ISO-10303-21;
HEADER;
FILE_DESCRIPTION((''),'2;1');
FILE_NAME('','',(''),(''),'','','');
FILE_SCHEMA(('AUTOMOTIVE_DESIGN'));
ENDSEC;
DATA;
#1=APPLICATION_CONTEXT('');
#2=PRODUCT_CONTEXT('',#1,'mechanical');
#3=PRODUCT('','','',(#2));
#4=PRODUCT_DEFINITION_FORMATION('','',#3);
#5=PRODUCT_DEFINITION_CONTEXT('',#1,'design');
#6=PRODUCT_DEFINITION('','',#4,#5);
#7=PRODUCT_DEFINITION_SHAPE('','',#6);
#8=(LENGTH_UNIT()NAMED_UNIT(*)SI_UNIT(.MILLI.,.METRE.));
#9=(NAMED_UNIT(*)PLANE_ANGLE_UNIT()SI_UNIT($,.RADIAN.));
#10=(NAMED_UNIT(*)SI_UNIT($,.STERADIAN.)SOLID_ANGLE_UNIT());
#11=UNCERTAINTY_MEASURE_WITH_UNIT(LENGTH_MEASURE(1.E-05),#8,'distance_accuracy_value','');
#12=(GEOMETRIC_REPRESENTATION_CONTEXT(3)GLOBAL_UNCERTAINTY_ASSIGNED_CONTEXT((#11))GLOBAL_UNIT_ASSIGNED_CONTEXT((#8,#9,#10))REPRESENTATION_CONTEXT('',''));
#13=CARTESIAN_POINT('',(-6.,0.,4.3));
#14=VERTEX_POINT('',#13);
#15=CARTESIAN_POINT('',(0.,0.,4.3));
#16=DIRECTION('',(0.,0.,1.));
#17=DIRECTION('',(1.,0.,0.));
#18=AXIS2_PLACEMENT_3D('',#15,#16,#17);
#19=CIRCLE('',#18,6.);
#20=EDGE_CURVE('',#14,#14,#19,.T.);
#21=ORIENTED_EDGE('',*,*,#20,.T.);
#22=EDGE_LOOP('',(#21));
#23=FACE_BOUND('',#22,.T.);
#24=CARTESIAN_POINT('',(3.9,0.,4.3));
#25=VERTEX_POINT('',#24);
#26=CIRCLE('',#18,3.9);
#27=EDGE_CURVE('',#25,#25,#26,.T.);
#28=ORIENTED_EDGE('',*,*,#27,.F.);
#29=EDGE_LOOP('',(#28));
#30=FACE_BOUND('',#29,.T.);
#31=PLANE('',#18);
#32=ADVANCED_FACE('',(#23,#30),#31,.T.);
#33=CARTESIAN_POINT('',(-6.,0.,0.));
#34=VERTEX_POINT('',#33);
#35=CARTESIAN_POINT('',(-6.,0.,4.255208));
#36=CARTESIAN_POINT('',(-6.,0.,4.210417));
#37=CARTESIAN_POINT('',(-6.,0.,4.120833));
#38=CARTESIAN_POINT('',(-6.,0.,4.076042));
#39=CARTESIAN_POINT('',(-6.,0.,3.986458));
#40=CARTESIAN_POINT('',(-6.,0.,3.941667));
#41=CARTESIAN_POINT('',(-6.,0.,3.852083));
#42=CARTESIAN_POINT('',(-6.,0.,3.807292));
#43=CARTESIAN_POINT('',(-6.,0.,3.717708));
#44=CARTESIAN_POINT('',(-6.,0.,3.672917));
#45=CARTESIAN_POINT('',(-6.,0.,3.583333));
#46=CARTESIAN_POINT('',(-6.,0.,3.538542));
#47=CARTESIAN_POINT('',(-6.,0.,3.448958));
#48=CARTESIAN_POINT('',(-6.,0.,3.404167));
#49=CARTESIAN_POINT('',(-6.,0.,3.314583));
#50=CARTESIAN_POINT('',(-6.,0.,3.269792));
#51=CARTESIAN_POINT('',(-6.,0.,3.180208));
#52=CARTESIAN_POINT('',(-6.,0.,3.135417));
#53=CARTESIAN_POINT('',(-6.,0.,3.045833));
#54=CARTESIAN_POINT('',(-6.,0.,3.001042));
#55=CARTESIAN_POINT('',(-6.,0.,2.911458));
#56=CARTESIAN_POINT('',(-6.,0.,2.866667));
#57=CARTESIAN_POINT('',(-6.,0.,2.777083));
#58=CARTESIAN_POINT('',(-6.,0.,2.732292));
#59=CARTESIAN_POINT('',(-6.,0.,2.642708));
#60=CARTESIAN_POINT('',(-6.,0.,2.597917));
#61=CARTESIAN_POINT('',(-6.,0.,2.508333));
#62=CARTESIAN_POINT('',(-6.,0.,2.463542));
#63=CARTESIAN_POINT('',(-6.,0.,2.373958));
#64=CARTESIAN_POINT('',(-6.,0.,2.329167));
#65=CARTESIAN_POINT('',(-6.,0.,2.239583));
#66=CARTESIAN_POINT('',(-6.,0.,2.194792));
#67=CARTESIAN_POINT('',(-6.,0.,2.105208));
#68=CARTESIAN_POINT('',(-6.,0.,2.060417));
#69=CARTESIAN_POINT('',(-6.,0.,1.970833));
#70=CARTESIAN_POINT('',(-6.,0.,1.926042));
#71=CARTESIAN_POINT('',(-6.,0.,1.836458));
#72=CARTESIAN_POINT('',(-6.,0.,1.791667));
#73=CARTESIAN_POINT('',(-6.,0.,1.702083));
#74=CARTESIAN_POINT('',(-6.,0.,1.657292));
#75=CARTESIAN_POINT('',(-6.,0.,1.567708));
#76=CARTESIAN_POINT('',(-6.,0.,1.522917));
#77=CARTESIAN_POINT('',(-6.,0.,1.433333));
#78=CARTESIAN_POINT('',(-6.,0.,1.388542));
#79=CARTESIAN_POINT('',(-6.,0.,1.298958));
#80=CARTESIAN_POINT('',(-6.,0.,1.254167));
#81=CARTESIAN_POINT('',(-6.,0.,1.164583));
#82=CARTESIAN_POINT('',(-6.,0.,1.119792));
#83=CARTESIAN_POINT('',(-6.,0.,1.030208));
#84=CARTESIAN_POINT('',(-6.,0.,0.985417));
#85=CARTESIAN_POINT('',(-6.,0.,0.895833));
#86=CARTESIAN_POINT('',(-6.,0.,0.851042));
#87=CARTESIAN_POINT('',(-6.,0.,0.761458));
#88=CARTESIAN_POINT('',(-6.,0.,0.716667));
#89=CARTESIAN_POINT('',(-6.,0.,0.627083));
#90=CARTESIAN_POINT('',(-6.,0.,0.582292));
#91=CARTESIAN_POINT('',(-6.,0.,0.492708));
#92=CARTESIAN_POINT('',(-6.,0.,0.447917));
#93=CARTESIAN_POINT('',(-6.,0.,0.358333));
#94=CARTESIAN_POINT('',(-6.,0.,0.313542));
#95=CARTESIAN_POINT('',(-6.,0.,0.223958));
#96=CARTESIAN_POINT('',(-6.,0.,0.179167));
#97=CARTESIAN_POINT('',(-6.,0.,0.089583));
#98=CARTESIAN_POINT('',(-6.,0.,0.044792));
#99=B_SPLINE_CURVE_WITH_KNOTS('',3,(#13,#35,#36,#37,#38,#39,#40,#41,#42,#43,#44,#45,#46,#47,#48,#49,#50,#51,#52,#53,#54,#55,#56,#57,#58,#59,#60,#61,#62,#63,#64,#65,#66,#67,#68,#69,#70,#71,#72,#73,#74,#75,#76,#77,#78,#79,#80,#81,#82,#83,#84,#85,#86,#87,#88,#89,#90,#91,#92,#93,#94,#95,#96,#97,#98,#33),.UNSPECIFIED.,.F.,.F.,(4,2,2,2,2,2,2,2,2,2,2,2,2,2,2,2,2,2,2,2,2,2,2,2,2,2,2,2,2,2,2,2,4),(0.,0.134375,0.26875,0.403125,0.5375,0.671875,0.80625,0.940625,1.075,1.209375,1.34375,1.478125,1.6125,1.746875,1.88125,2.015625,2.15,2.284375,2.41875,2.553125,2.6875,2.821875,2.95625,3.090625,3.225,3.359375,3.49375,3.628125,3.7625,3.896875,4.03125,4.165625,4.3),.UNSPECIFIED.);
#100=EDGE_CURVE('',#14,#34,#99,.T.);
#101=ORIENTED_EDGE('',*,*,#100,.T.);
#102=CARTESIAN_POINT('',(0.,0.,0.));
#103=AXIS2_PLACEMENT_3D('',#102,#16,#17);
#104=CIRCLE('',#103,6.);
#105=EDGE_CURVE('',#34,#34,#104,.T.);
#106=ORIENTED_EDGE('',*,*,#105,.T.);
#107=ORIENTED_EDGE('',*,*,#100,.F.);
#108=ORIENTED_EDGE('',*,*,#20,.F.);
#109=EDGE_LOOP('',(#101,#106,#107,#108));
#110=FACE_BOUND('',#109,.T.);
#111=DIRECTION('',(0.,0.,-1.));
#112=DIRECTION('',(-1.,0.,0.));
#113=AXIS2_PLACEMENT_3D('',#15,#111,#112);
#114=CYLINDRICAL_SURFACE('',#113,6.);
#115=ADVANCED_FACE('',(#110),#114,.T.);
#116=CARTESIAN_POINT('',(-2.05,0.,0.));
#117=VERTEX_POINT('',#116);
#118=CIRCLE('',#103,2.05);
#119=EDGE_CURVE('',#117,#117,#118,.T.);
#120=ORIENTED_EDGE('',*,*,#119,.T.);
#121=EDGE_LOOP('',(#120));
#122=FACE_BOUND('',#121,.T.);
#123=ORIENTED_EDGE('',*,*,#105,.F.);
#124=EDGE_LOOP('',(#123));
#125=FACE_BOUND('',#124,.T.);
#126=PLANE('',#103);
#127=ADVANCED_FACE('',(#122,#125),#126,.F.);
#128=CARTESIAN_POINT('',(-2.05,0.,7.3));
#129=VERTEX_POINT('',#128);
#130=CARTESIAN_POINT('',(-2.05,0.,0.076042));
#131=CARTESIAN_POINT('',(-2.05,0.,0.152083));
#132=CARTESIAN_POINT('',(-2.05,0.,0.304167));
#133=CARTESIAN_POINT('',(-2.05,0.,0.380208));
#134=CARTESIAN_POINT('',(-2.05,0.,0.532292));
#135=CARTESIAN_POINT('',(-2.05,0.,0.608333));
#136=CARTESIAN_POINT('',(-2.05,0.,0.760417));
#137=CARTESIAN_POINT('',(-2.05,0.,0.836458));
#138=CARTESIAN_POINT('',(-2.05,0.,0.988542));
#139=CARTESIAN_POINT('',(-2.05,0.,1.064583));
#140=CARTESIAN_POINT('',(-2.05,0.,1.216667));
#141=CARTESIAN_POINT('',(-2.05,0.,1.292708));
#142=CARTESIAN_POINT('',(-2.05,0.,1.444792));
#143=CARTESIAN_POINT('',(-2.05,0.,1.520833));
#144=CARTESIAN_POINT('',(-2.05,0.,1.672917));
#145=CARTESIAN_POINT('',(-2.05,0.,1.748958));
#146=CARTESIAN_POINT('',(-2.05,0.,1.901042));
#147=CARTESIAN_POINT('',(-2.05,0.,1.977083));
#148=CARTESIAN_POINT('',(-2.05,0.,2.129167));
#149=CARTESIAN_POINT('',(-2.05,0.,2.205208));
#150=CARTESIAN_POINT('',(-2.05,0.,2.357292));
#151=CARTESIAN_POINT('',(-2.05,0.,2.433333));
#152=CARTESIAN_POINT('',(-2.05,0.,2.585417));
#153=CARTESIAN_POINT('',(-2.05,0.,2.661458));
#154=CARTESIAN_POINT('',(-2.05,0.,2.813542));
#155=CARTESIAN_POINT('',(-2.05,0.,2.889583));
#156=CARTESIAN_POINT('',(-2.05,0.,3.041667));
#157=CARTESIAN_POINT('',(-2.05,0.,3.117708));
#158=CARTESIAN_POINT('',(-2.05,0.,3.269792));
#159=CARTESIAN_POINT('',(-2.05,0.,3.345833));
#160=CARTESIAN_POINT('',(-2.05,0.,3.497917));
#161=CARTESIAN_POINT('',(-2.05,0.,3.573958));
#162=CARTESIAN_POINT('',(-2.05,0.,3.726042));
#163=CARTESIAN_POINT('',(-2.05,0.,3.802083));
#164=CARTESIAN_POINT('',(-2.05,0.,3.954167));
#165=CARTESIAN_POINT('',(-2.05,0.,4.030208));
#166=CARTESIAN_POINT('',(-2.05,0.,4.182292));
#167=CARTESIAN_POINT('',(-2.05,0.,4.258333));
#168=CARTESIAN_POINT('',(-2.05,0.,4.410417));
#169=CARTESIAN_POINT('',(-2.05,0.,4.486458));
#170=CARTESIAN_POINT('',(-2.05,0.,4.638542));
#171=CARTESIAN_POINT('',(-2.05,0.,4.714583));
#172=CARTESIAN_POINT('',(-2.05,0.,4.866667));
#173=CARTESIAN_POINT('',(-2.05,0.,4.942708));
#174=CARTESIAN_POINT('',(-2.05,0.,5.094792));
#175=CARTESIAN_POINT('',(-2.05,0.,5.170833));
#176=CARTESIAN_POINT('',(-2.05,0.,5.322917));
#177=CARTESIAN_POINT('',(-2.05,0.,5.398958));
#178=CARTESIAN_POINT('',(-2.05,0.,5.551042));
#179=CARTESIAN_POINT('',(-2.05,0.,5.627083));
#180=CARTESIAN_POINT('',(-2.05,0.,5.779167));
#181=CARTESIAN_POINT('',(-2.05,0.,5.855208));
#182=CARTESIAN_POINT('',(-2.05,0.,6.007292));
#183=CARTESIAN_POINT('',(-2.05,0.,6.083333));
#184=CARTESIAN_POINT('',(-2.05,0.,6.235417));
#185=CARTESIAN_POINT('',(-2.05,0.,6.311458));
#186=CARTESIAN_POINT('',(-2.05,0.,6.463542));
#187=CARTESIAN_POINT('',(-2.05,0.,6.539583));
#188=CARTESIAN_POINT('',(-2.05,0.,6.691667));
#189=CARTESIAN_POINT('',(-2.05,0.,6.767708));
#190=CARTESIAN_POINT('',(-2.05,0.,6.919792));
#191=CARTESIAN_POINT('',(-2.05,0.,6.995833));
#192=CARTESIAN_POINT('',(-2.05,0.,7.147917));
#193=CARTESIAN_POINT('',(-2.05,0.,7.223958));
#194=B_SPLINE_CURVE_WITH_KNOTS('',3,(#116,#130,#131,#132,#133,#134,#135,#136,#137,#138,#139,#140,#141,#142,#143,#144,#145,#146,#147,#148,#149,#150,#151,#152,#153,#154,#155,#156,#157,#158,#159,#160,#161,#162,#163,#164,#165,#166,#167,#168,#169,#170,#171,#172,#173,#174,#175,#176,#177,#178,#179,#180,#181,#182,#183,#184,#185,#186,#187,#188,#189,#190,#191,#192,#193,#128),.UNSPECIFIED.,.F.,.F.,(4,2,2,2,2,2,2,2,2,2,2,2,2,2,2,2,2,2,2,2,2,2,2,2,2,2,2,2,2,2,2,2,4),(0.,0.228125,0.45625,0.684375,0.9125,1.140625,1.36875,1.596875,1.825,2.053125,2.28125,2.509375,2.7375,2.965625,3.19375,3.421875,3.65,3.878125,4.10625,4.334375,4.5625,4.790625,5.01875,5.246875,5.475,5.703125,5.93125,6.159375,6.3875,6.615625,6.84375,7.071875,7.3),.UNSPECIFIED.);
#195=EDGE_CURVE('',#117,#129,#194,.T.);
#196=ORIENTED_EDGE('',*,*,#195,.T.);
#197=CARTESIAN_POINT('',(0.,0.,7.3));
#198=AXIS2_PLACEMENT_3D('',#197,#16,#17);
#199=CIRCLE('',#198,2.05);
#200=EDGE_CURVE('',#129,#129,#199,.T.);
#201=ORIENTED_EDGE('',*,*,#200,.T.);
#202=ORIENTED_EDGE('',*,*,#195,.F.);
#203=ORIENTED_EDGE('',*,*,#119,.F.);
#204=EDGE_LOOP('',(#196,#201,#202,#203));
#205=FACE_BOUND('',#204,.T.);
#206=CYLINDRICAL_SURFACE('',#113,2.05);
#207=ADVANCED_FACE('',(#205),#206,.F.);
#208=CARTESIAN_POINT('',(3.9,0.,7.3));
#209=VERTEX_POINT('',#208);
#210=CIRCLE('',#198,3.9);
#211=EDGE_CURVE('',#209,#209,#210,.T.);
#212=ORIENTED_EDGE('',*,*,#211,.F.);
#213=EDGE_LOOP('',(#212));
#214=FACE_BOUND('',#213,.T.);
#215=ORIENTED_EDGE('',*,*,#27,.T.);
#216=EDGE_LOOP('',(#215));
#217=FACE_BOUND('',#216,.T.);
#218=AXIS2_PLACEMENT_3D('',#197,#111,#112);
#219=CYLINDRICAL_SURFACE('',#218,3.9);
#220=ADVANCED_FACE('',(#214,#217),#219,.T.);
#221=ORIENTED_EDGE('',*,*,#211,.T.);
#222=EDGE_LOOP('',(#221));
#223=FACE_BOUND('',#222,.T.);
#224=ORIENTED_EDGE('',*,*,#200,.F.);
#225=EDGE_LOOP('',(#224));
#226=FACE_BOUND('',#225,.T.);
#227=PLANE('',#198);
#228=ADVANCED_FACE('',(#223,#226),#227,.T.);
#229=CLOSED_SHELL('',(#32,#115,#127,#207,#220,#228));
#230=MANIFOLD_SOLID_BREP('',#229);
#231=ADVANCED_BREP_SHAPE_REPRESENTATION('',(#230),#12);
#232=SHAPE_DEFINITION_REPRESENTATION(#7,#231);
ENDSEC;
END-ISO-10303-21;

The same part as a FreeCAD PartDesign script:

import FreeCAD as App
import Part
import Sketcher

doc = App.newDocument("Part")
body = doc.addObject("PartDesign::Body", "Body")

# Sketch on XY plane
sketch1 = body.newObject("Sketcher::SketchObject", "Sketch")
sketch1.AttachmentSupport = (doc.getObject("XY_Plane"), [""])
sketch1.MapMode = "FlatFace"
sketch1.addGeometry([
    Part.Circle(App.Vector(0, 0, 0), App.Vector(0, 0, 1), 6),
    Part.Circle(App.Vector(0, 0, 0), App.Vector(0, 0, 1), 2),
], False)
sketch1.addConstraint([
    Sketcher.Constraint("Coincident", 0, 3, -1, 1),
    Sketcher.Constraint("Coincident", 1, 3, -1, 1),
    Sketcher.Constraint("Diameter", 0, 12.0),
    Sketcher.Constraint("Diameter", 1, 4.1),
])
pad1 = body.newObject("PartDesign::Pad", "Pad")
pad1.Profile = sketch1
pad1.Length = 4.3

# Sketch on XY plane
sketch2 = body.newObject("Sketcher::SketchObject", "Sketch001")
sketch2.AttachmentSupport = (doc.getObject("XY_Plane"), [""])
sketch2.MapMode = "FlatFace"
sketch2.AttachmentOffset = App.Placement(App.Vector(0, 0, 4.3), App.Rotation())
sketch2.addGeometry([
    Part.Circle(App.Vector(0, 0, 0), App.Vector(0, 0, 1), 3.9),
    Part.Circle(App.Vector(0, 0, 0), App.Vector(0, 0, 1), 2),
], False)
sketch2.addConstraint([
    Sketcher.Constraint("Coincident", 0, 3, -1, 1),
    Sketcher.Constraint("Coincident", 1, 3, -1, 1),
    Sketcher.Constraint("Diameter", 0, 7.8),
    Sketcher.Constraint("Diameter", 1, 4.1),
])
pad2 = body.newObject("PartDesign::Pad", "Pad001")
pad2.Profile = sketch2
pad2.Length = 3

doc.recompute()
